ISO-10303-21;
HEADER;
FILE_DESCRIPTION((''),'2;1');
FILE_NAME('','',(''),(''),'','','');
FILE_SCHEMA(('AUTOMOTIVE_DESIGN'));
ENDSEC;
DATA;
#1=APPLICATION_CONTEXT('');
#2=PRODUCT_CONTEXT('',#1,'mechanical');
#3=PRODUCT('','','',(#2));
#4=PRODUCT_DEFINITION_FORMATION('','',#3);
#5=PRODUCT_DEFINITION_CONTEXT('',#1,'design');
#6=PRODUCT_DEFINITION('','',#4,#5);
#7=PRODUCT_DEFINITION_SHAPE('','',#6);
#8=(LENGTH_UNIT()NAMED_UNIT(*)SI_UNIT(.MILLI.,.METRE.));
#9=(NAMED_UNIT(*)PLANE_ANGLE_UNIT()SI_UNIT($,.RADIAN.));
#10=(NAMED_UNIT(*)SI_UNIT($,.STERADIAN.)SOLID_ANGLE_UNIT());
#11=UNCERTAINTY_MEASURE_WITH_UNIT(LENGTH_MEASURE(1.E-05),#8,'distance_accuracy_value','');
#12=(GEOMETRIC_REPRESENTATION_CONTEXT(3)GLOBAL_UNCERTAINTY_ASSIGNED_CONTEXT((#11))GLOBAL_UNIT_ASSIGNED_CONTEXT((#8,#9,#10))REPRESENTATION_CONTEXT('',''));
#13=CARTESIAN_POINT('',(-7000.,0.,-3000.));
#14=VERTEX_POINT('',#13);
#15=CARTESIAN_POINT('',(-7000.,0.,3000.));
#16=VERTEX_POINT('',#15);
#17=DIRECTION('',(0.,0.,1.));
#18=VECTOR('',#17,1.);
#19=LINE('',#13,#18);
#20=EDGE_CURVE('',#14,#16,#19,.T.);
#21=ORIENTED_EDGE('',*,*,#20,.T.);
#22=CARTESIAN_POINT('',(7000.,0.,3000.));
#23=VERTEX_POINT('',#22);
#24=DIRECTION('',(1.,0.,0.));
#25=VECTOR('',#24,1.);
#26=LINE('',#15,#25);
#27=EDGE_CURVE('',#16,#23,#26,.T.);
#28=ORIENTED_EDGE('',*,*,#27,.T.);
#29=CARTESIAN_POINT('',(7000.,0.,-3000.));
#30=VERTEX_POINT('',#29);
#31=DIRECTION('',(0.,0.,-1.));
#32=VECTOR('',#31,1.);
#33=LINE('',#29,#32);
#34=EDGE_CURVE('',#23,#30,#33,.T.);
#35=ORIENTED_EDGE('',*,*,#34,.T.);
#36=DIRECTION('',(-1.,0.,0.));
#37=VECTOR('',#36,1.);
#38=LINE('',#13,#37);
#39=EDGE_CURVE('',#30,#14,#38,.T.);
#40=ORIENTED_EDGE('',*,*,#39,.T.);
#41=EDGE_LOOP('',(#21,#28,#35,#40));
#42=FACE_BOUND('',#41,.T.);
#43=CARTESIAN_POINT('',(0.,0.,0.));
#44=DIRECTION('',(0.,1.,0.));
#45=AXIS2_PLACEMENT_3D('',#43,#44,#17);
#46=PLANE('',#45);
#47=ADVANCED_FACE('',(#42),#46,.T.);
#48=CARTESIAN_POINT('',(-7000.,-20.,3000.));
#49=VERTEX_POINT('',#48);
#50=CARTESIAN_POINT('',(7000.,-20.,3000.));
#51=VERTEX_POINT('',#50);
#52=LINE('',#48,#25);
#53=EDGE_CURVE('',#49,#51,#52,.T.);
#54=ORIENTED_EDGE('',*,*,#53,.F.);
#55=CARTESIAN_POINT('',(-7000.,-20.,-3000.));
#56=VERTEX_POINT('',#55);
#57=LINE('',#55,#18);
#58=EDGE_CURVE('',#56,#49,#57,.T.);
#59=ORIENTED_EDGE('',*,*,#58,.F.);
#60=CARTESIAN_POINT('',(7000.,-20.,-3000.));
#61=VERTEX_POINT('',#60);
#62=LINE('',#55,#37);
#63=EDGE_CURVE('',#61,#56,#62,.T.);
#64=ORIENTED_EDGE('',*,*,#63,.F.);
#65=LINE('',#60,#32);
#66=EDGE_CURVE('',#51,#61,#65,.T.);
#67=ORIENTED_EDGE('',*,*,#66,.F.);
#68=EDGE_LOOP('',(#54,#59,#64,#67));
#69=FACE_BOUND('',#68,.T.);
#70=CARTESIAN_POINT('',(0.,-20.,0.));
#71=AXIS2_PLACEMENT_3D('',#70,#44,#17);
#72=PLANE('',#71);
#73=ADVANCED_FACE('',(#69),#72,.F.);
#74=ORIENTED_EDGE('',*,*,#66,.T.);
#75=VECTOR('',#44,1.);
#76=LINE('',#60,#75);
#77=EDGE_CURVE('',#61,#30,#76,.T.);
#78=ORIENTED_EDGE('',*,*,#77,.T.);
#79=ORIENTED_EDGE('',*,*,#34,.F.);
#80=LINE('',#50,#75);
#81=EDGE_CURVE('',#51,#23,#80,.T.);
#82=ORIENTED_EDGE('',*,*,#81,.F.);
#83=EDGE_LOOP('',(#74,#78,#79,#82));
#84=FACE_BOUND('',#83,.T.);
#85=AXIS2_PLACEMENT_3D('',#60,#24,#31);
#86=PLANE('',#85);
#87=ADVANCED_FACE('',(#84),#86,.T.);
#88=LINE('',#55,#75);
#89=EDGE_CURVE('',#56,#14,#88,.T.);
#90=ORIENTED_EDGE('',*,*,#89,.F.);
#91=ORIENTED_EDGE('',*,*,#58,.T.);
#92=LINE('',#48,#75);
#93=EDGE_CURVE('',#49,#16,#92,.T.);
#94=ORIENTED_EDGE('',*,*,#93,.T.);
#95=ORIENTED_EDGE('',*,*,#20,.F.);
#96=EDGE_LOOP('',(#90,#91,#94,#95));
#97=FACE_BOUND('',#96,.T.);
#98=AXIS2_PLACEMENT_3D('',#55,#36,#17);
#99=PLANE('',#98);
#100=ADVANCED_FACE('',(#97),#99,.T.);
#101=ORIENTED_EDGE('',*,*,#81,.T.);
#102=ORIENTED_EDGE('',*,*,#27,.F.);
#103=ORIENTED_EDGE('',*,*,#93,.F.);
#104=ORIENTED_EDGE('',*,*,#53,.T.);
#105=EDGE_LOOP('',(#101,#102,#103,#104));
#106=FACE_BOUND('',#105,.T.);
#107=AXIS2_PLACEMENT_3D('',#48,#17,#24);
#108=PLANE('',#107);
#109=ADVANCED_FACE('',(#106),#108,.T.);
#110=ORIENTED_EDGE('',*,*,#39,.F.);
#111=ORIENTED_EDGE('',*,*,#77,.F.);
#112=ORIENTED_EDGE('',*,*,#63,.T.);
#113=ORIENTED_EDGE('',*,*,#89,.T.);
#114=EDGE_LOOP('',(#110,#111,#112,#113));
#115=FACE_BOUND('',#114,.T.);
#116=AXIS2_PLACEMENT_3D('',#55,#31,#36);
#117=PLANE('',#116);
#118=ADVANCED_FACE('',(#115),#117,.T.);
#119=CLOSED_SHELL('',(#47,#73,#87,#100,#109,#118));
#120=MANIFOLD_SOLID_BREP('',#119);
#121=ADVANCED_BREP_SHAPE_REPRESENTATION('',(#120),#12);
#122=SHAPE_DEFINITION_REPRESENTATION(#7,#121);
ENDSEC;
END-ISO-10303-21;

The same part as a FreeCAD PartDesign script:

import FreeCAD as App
import Part
import Sketcher

V = App.Vector

doc = App.newDocument("Part")
body = doc.addObject("PartDesign::Body", "Body")

# Sketch on XZ plane
sketch1 = body.newObject("Sketcher::SketchObject", "Sketch")
sketch1.AttachmentSupport = (doc.getObject("XZ_Plane"), [""])
sketch1.MapMode = "FlatFace"
sketch1.addGeometry(Part.LineSegment(V(-7000, -3000, 0), V(-7000, 3000, 0)), False)
sketch1.addGeometry(Part.LineSegment(V(-7000, 3000, 0), V(7000, 3000, 0)), False)
sketch1.addGeometry(Part.LineSegment(V(7000, 3000, 0), V(7000, -3000, 0)), False)
sketch1.addGeometry(Part.LineSegment(V(7000, -3000, 0), V(-7000, -3000, 0)), False)
sketch1.addConstraint(Sketcher.Constraint("Coincident", 0, 2, 1, 1))
sketch1.addConstraint(Sketcher.Constraint("Coincident", 1, 2, 2, 1))
sketch1.addConstraint(Sketcher.Constraint("Coincident", 2, 2, 3, 1))
sketch1.addConstraint(Sketcher.Constraint("Coincident", 3, 2, 0, 1))
sketch1.addConstraint(Sketcher.Constraint("Vertical", 0))
sketch1.addConstraint(Sketcher.Constraint("Horizontal", 1))
sketch1.addConstraint(Sketcher.Constraint("Vertical", 2))
sketch1.addConstraint(Sketcher.Constraint("Horizontal", 3))
sketch1.addConstraint(Sketcher.Constraint("Symmetric", 0, 2, 2, 2, -1, 1))
sketch1.addConstraint(Sketcher.Constraint("DistanceX", 1, 1, 1, 2, 14000.0))
sketch1.addConstraint(Sketcher.Constraint("DistanceY", 0, 1, 0, 2, 6000.0))
pad1 = body.newObject("PartDesign::Pad", "Pad")
pad1.Profile = sketch1
pad1.Length = 20

doc.recompute()
